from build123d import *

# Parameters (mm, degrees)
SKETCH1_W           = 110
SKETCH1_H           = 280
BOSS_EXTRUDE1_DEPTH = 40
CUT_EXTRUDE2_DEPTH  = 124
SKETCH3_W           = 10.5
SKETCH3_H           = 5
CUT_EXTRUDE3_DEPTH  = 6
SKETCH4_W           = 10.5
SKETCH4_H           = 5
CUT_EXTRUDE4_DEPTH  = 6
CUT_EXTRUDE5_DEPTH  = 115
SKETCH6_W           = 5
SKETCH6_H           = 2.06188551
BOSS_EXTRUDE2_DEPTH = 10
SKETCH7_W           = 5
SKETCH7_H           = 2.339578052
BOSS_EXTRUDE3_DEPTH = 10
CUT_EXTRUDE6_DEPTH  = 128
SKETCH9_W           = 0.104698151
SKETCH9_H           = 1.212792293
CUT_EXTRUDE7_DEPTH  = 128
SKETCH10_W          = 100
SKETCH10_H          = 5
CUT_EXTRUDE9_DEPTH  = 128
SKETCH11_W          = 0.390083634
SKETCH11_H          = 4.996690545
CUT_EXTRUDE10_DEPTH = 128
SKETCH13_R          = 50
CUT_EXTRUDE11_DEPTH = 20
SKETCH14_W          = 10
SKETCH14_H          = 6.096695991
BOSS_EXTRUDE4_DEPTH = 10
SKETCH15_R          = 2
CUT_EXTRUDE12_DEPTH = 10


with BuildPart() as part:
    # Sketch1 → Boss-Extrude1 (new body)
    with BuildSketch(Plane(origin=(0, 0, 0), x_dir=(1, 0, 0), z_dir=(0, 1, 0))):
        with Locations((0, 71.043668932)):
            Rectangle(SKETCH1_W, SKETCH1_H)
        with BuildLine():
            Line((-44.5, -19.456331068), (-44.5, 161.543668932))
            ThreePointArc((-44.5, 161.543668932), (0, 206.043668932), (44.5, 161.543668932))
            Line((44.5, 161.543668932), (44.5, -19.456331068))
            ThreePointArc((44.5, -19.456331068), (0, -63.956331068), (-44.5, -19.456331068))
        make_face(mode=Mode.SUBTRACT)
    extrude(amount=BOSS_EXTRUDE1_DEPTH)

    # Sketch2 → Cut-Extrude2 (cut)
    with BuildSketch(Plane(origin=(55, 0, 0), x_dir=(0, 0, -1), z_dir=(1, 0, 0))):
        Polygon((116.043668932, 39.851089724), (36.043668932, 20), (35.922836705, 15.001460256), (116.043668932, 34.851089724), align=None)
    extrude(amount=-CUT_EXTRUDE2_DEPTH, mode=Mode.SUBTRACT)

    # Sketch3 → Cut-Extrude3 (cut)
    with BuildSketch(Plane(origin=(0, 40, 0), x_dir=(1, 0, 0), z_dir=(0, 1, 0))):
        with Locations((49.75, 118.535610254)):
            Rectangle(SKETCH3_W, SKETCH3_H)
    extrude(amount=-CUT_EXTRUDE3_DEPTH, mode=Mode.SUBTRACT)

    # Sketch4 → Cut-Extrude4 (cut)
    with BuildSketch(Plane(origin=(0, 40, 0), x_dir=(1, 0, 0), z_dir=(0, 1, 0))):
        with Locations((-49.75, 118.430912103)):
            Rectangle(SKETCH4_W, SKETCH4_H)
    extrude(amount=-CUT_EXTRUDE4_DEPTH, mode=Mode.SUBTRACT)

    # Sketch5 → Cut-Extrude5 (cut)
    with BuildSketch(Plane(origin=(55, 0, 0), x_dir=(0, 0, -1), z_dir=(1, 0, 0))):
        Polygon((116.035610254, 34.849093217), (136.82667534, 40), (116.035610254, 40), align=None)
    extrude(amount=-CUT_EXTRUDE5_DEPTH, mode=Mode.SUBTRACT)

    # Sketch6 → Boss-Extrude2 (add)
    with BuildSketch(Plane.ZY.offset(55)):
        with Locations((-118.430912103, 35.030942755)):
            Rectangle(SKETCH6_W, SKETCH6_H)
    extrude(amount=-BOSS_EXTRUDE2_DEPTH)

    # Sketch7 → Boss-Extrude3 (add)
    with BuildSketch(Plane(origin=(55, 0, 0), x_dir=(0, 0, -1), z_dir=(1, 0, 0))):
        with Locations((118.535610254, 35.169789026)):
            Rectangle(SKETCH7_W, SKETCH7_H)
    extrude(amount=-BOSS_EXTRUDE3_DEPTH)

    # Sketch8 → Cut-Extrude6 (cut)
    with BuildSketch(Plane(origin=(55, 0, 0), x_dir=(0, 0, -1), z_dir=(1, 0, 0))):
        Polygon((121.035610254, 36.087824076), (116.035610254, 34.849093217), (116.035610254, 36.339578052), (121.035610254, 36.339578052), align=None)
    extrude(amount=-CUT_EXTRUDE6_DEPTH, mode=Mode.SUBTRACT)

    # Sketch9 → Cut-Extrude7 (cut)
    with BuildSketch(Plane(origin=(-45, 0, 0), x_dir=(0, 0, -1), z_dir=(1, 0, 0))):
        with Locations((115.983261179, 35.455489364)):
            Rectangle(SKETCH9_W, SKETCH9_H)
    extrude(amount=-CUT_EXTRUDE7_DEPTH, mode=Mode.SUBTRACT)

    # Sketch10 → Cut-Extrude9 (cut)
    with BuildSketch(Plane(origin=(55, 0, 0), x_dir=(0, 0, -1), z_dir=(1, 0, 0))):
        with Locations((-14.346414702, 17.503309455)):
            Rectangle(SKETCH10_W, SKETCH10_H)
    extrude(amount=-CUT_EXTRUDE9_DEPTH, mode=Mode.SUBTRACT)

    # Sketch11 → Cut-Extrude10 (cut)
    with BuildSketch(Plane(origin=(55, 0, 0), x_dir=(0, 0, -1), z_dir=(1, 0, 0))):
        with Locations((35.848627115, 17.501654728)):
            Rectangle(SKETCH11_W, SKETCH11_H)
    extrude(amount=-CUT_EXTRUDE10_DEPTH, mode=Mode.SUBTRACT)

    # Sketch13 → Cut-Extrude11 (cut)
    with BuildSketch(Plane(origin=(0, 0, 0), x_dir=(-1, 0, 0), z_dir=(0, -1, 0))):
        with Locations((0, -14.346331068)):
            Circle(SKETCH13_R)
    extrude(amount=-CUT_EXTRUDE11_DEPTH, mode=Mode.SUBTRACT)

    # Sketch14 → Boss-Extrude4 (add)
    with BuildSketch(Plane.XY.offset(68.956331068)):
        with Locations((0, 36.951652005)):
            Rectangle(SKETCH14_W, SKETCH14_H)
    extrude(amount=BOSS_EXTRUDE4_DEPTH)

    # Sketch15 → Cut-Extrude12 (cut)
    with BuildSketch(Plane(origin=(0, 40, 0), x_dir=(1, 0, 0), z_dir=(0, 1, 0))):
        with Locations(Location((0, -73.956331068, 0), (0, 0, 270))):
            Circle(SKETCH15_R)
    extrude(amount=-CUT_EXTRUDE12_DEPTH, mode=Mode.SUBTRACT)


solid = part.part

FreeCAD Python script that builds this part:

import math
import FreeCAD as App
import Part
import Sketcher
Q = App.Units.Quantity

doc = App.newDocument("Part")
params = doc.addObject("Spreadsheet::Sheet", "Params")
for row, (alias, value) in enumerate([
    ("sketch1_radius", "44.5 mm"),
    ("sketch1_width", "110 mm"),
    ("sketch1_height", "280 mm"),
    ("sketch1_height2", "181 mm"),
    ("pad1_length", "40 mm"),
    ("sketch2_width", "5 mm"),
    ("sketch2_length", "5 mm"),
    ("pocket1_length", "124 mm"),
    ("sketch3_height", "5 mm"),
    ("sketch3_width", "10.5 mm"),
    ("pocket2_length", "6 mm"),
    ("sketch4_height", "5 mm"),
    ("sketch4_width", "10.5 mm"),
    ("pocket3_length", "6 mm"),
    ("pocket4_length", "115 mm"),
    ("sketch6_height", "5 mm"),
    ("pad2_length", "10 mm"),
    ("sketch7_height", "5 mm"),
    ("pad3_length", "10 mm"),
    ("sketch8_height", "5 mm"),
    ("pocket5_length", "128 mm"),
    ("pocket6_length", "128 mm"),
    ("sketch10_width", "5 mm"),
    ("sketch10_height", "100 mm"),
    ("pocket7_length", "128 mm"),
    ("pocket8_length", "128 mm"),
    ("sketch12_diameter", "100 mm"),
    ("pocket9_length", "20 mm"),
    ("sketch13_width", "10 mm"),
    ("pad4_length", "10 mm"),
    ("sketch14_diameter", "4 mm"),
    ("pocket10_length", "10 mm"),
], start=1):
    params.set(f"A{row}", alias)
    params.set(f"B{row}", "=" + value)
    params.setAlias(f"B{row}", alias)

body = doc.addObject("PartDesign::Body", "Body")

# Sketch on XZ plane
sketch1 = body.newObject("Sketcher::SketchObject", "Sketch")
sketch1.AttachmentSupport = (doc.getObject("XZ_Plane"), [""])
sketch1.MapMode = "FlatFace"
sketch1.addGeometry([
    Part.LineSegment(App.Vector(-55, -211, 0), App.Vector(-55, 69, 0)),  # 0
    Part.LineSegment(App.Vector(-55, 69, 0), App.Vector(55, 69, 0)),  # 1
    Part.LineSegment(App.Vector(55, 69, 0), App.Vector(55, -211, 0)),  # 2
    Part.LineSegment(App.Vector(55, -211, 0), App.Vector(-55, -211, 0)),  # 3
    Part.ArcOfCircle(Part.Circle(App.Vector(0, 19, 0), App.Vector(0, 0, 1), 44), math.radians(0), math.radians(180)),  # 4
    Part.LineSegment(App.Vector(-44, 19, 0), App.Vector(-44, -162, 0)),  # 5
    Part.ArcOfCircle(Part.Circle(App.Vector(0, -162, 0), App.Vector(0, 0, 1), 44), math.radians(180), math.radians(360)),  # 6
    Part.LineSegment(App.Vector(44, -162, 0), App.Vector(44, 19, 0)),  # 7
], False)
sketch1.addConstraint([
    Sketcher.Constraint("Coincident", 0, 2, 1, 1),
    Sketcher.Constraint("Coincident", 1, 2, 2, 1),
    Sketcher.Constraint("Coincident", 2, 2, 3, 1),
    Sketcher.Constraint("Coincident", 3, 2, 0, 1),
    Sketcher.Constraint("Tangent", 4, 2, 5, 1),
    Sketcher.Constraint("Tangent", 5, 2, 6, 1),
    Sketcher.Constraint("Tangent", 6, 2, 7, 1),
    Sketcher.Constraint("Tangent", 7, 2, 4, 1),
    Sketcher.Constraint("Vertical", 0),
    Sketcher.Constraint("Horizontal", 1),
    Sketcher.Constraint("Vertical", 2),
    Sketcher.Constraint("Horizontal", 3),
    Sketcher.Constraint("Vertical", 5),
    Sketcher.Constraint("Vertical", 7),
    Sketcher.Constraint("PointOnObject", 4, 3, -2),
    Sketcher.Constraint("Radius", 4, Q("44.5 mm")),
    Sketcher.Constraint("DistanceX", 1, 1, 1, 2, Q("110 mm")),
    Sketcher.Constraint("DistanceY", 0, 1, 0, 2, Q("280 mm")),
    Sketcher.Constraint("DistanceY", 5, 2, 5, 1, Q("181 mm")),
    Sketcher.Constraint("DistanceX", 0, 2, -1, 1, Q("55 mm")),
    Sketcher.Constraint("DistanceY", 4, 3, 0, 2, Q("49.5 mm")),
    Sketcher.Constraint("DistanceY", -1, 1, 4, 3, Q("19.456331 mm")),
])
sketch1.setExpression("Constraints[15]", "Params.sketch1_radius")
sketch1.setExpression("Constraints[16]", "Params.sketch1_width")
sketch1.setExpression("Constraints[17]", "Params.sketch1_height")
sketch1.setExpression("Constraints[18]", "Params.sketch1_height2")
pad1 = body.newObject("PartDesign::Pad", "Pad")
pad1.Profile = sketch1
pad1.setExpression("Length", "Params.pad1_length")
pad1.Reversed = True

# Sketch on YZ plane
sketch2 = body.newObject("Sketcher::SketchObject", "Sketch001")
sketch2.AttachmentSupport = (doc.getObject("YZ_Plane"), [""])
sketch2.MapMode = "FlatFace"
sketch2.AttachmentOffset = App.Placement(App.Vector(0, 0, 55), App.Rotation())
sketch2.addGeometry([
    Part.LineSegment(App.Vector(39.9, -116, 0), App.Vector(20, -36, 0)),
    Part.LineSegment(App.Vector(20, -36, 0), App.Vector(15, -35.9, 0)),
    Part.LineSegment(App.Vector(15, -35.9, 0), App.Vector(34.9, -116, 0)),
    Part.LineSegment(App.Vector(34.9, -116, 0), App.Vector(39.9, -116, 0)),
], False)
sketch2.addConstraint([
    Sketcher.Constraint("Coincident", 0, 2, 1, 1),
    Sketcher.Constraint("Coincident", 1, 2, 2, 1),
    Sketcher.Constraint("Coincident", 2, 2, 3, 1),
    Sketcher.Constraint("Coincident", 3, 2, 0, 1),
    Sketcher.Constraint("Horizontal", 3),
    Sketcher.Constraint("DistanceX", 3, 1, 3, 2, Q("5 mm")),
    Sketcher.Constraint("Distance", 1, Q("5 mm")),
    Sketcher.Constraint("DistanceX", -1, 1, 0, 2, Q("20 mm")),
    Sketcher.Constraint("DistanceY", 2, 2, 0, 2, Q("80 mm")),
    Sketcher.Constraint("DistanceY", 0, 2, -1, 1, Q("36.043669 mm")),
    Sketcher.Constraint("DistanceX", -1, 1, 1, 2, Q("15.00146 mm")),
    Sketcher.Constraint("DistanceX", -1, 1, 2, 2, Q("34.85109 mm")),
])
sketch2.setExpression("Constraints[5]", "Params.sketch2_width")
sketch2.setExpression("Constraints[6]", "Params.sketch2_length")
pocket1 = body.newObject("PartDesign::Pocket", "Pocket")
pocket1.Profile = sketch2
pocket1.setExpression("Length", "Params.pocket1_length")

# Sketch on XZ plane
sketch3 = body.newObject("Sketcher::SketchObject", "Sketch002")
sketch3.AttachmentSupport = (doc.getObject("XZ_Plane"), [""])
sketch3.MapMode = "FlatFace"
sketch3.AttachmentOffset = App.Placement(App.Vector(0, 0, -40), App.Rotation())
sketch3.addGeometry([
    Part.LineSegment(App.Vector(44, -121, 0), App.Vector(44, -116, 0)),
    Part.LineSegment(App.Vector(44, -116, 0), App.Vector(55, -116, 0)),
    Part.LineSegment(App.Vector(55, -116, 0), App.Vector(55, -121, 0)),
    Part.LineSegment(App.Vector(55, -121, 0), App.Vector(44, -121, 0)),
], False)
sketch3.addConstraint([
    Sketcher.Constraint("Coincident", 0, 2, 1, 1),
    Sketcher.Constraint("Coincident", 1, 2, 2, 1),
    Sketcher.Constraint("Coincident", 2, 2, 3, 1),
    Sketcher.Constraint("Coincident", 3, 2, 0, 1),
    Sketcher.Constraint("Vertical", 0),
    Sketcher.Constraint("Horizontal", 1),
    Sketcher.Constraint("Vertical", 2),
    Sketcher.Constraint("Horizontal", 3),
    Sketcher.Constraint("DistanceY", 0, 1, 0, 2, Q("5 mm")),
    Sketcher.Constraint("DistanceX", 1, 1, 1, 2, Q("10.5 mm")),
    Sketcher.Constraint("DistanceX", -1, 1, 1, 2, Q("55 mm")),
    Sketcher.Constraint("DistanceY", 0, 2, -1, 1, Q("116.03561 mm")),
])
sketch3.setExpression("Constraints[8]", "Params.sketch3_height")
sketch3.setExpression("Constraints[9]", "Params.sketch3_width")
pocket2 = body.newObject("PartDesign::Pocket", "Pocket001")
pocket2.Profile = sketch3
pocket2.setExpression("Length", "Params.pocket2_length")
pocket2.Reversed = True

# Sketch on XZ plane
sketch4 = body.newObject("Sketcher::SketchObject", "Sketch003")
sketch4.AttachmentSupport = (doc.getObject("XZ_Plane"), [""])
sketch4.MapMode = "FlatFace"
sketch4.AttachmentOffset = App.Placement(App.Vector(0, 0, -40), App.Rotation())
sketch4.addGeometry([
    Part.LineSegment(App.Vector(-55, -121, 0), App.Vector(-55, -116, 0)),
    Part.LineSegment(App.Vector(-55, -116, 0), App.Vector(-44, -116, 0)),
    Part.LineSegment(App.Vector(-44, -116, 0), App.Vector(-44, -121, 0)),
    Part.LineSegment(App.Vector(-44, -121, 0), App.Vector(-55, -121, 0)),
], False)
sketch4.addConstraint([
    Sketcher.Constraint("Coincident", 0, 2, 1, 1),
    Sketcher.Constraint("Coincident", 1, 2, 2, 1),
    Sketcher.Constraint("Coincident", 2, 2, 3, 1),
    Sketcher.Constraint("Coincident", 3, 2, 0, 1),
    Sketcher.Constraint("Vertical", 0),
    Sketcher.Constraint("Horizontal", 1),
    Sketcher.Constraint("Vertical", 2),
    Sketcher.Constraint("Horizontal", 3),
    Sketcher.Constraint("DistanceY", 0, 1, 0, 2, Q("5 mm")),
    Sketcher.Constraint("DistanceX", 1, 1, 1, 2, Q("10.5 mm")),
    Sketcher.Constraint("DistanceX", 0, 2, -1, 1, Q("55 mm")),
    Sketcher.Constraint("DistanceY", 0, 2, -1, 1, Q("115.930912 mm")),
])
sketch4.setExpression("Constraints[8]", "Params.sketch4_height")
sketch4.setExpression("Constraints[9]", "Params.sketch4_width")
pocket3 = body.newObject("PartDesign::Pocket", "Pocket002")
pocket3.Profile = sketch4
pocket3.setExpression("Length", "Params.pocket3_length")
pocket3.Reversed = True

# Sketch on YZ plane
sketch5 = body.newObject("Sketcher::SketchObject", "Sketch004")
sketch5.AttachmentSupport = (doc.getObject("YZ_Plane"), [""])
sketch5.MapMode = "FlatFace"
sketch5.AttachmentOffset = App.Placement(App.Vector(0, 0, 55), App.Rotation())
sketch5.addGeometry([
    Part.LineSegment(App.Vector(35, -116, 0), App.Vector(40, -137, 0)),
    Part.LineSegment(App.Vector(40, -137, 0), App.Vector(40, -116, 0)),
    Part.LineSegment(App.Vector(40, -116, 0), App.Vector(35, -116, 0)),
], False)
sketch5.addConstraint([
    Sketcher.Constraint("Coincident", 0, 2, 1, 1),
    Sketcher.Constraint("Coincident", 1, 2, 2, 1),
    Sketcher.Constraint("Coincident", 2, 2, 0, 1),
    Sketcher.Constraint("Vertical", 1),
    Sketcher.Constraint("Horizontal", 2),
    Sketcher.Constraint("DistanceX", -1, 1, 0, 2, Q("40 mm")),
    Sketcher.Constraint("DistanceX", 2, 2, 2, 1, Q("5.150907 mm")),
    Sketcher.Constraint("DistanceY", 1, 1, 1, 2, Q("20.791065 mm")),
    Sketcher.Constraint("DistanceY", 1, 2, -1, 1, Q("116.03561 mm")),
])
pocket4 = body.newObject("PartDesign::Pocket", "Pocket003")
pocket4.Profile = sketch5
pocket4.setExpression("Length", "Params.pocket4_length")

# Sketch on YZ plane
sketch6 = body.newObject("Sketcher::SketchObject", "Sketch005")
sketch6.AttachmentSupport = (doc.getObject("YZ_Plane"), [""])
sketch6.MapMode = "FlatFace"
sketch6.AttachmentOffset = App.Placement(App.Vector(0, 0, -55), App.Rotation())
sketch6.addGeometry([
    Part.LineSegment(App.Vector(36.1, -120.9, 0), App.Vector(34, -120.9, 0)),
    Part.LineSegment(App.Vector(34, -120.9, 0), App.Vector(34, -115.9, 0)),
    Part.LineSegment(App.Vector(34, -115.9, 0), App.Vector(36.1, -115.9, 0)),
    Part.LineSegment(App.Vector(36.1, -115.9, 0), App.Vector(36.1, -120.9, 0)),
], False)
sketch6.addConstraint([
    Sketcher.Constraint("Coincident", 0, 2, 1, 1),
    Sketcher.Constraint("Coincident", 1, 2, 2, 1),
    Sketcher.Constraint("Coincident", 2, 2, 3, 1),
    Sketcher.Constraint("Coincident", 3, 2, 0, 1),
    Sketcher.Constraint("Horizontal", 0),
    Sketcher.Constraint("Vertical", 1),
    Sketcher.Constraint("Horizontal", 2),
    Sketcher.Constraint("Vertical", 3),
    Sketcher.Constraint("DistanceY", 1, 1, 1, 2, Q("5 mm")),
    Sketcher.Constraint("DistanceX", -1, 1, 0, 2, Q("34 mm")),
    Sketcher.Constraint("DistanceX", 0, 2, 0, 1, Q("2.061886 mm")),
    Sketcher.Constraint("DistanceY", 0, 2, -1, 1, Q("120.930912 mm")),
])
sketch6.setExpression("Constraints[8]", "Params.sketch6_height")
pad2 = body.newObject("PartDesign::Pad", "Pad001")
pad2.Profile = sketch6
pad2.setExpression("Length", "Params.pad2_length")

# Sketch on YZ plane
sketch7 = body.newObject("Sketcher::SketchObject", "Sketch006")
sketch7.AttachmentSupport = (doc.getObject("YZ_Plane"), [""])
sketch7.MapMode = "FlatFace"
sketch7.AttachmentOffset = App.Placement(App.Vector(0, 0, 55), App.Rotation())
sketch7.addGeometry([
    Part.LineSegment(App.Vector(36.3, -116, 0), App.Vector(34, -116, 0)),
    Part.LineSegment(App.Vector(34, -116, 0), App.Vector(34, -121, 0)),
    Part.LineSegment(App.Vector(34, -121, 0), App.Vector(36.3, -121, 0)),
    Part.LineSegment(App.Vector(36.3, -121, 0), App.Vector(36.3, -116, 0)),
], False)
sketch7.addConstraint([
    Sketcher.Constraint("Coincident", 0, 2, 1, 1),
    Sketcher.Constraint("Coincident", 1, 2, 2, 1),
    Sketcher.Constraint("Coincident", 2, 2, 3, 1),
    Sketcher.Constraint("Coincident", 3, 2, 0, 1),
    Sketcher.Constraint("Horizontal", 0),
    Sketcher.Constraint("Vertical", 1),
    Sketcher.Constraint("Horizontal", 2),
    Sketcher.Constraint("Vertical", 3),
    Sketcher.Constraint("DistanceY", 1, 2, 1, 1, Q("5 mm")),
    Sketcher.Constraint("DistanceX", -1, 1, 0, 2, Q("34 mm")),
    Sketcher.Constraint("DistanceX", 0, 2, 0, 1, Q("2.339578 mm")),
    Sketcher.Constraint("DistanceY", 0, 2, -1, 1, Q("116.03561 mm")),
])
sketch7.setExpression("Constraints[8]", "Params.sketch7_height")
pad3 = body.newObject("PartDesign::Pad", "Pad002")
pad3.Profile = sketch7
pad3.setExpression("Length", "Params.pad3_length")
pad3.Reversed = True

# Sketch on YZ plane
sketch8 = body.newObject("Sketcher::SketchObject", "Sketch007")
sketch8.AttachmentSupport = (doc.getObject("YZ_Plane"), [""])
sketch8.MapMode = "FlatFace"
sketch8.AttachmentOffset = App.Placement(App.Vector(0, 0, 55), App.Rotation())
sketch8.addGeometry([
    Part.LineSegment(App.Vector(34.85, -116.04, 0), App.Vector(36.09, -121.04, 0)),
    Part.LineSegment(App.Vector(36.09, -121.04, 0), App.Vector(36.34, -121.04, 0)),
    Part.LineSegment(App.Vector(36.34, -121.04, 0), App.Vector(36.34, -116.04, 0)),
    Part.LineSegment(App.Vector(36.34, -116.04, 0), App.Vector(34.85, -116.04, 0)),
], False)
sketch8.addConstraint([
    Sketcher.Constraint("Coincident", 0, 2, 1, 1),
    Sketcher.Constraint("Coincident", 1, 2, 2, 1),
    Sketcher.Constraint("Coincident", 2, 2, 3, 1),
    Sketcher.Constraint("Coincident", 3, 2, 0, 1),
    Sketcher.Constraint("Horizontal", 1),
    Sketcher.Constraint("Vertical", 2),
    Sketcher.Constraint("Horizontal", 3),
    Sketcher.Constraint("DistanceY", 2, 1, 2, 2, Q("5 mm")),
    Sketcher.Constraint("Distance", 0, Q("5.15116 mm")),
    Sketcher.Constraint("DistanceX", 1, 1, 1, 2, Q("0.251754 mm")),
    Sketcher.Constraint("DistanceY", 0, 2, -1, 1, Q("121.03561 mm")),
    Sketcher.Constraint("DistanceX", -1, 1, 1, 2, Q("36.339578 mm")),
])
sketch8.setExpression("Constraints[7]", "Params.sketch8_height")
pocket5 = body.newObject("PartDesign::Pocket", "Pocket004")
pocket5.Profile = sketch8
pocket5.setExpression("Length", "Params.pocket5_length")

# Sketch on YZ plane
sketch9 = body.newObject("Sketcher::SketchObject", "Sketch008")
sketch9.AttachmentSupport = (doc.getObject("YZ_Plane"), [""])
sketch9.MapMode = "FlatFace"
sketch9.AttachmentOffset = App.Placement(App.Vector(0, 0, -45), App.Rotation())
sketch9.addGeometry([
    Part.LineSegment(App.Vector(36.06, -115.93, 0), App.Vector(34.85, -115.93, 0)),
    Part.LineSegment(App.Vector(34.85, -115.93, 0), App.Vector(34.85, -116.04, 0)),
    Part.LineSegment(App.Vector(34.85, -116.04, 0), App.Vector(36.06, -116.04, 0)),
    Part.LineSegment(App.Vector(36.06, -116.04, 0), App.Vector(36.06, -115.93, 0)),
], False)
sketch9.addConstraint([
    Sketcher.Constraint("Coincident", 0, 2, 1, 1),
    Sketcher.Constraint("Coincident", 1, 2, 2, 1),
    Sketcher.Constraint("Coincident", 2, 2, 3, 1),
    Sketcher.Constraint("Coincident", 3, 2, 0, 1),
    Sketcher.Constraint("Horizontal", 0),
    Sketcher.Constraint("Vertical", 1),
    Sketcher.Constraint("Horizontal", 2),
    Sketcher.Constraint("Vertical", 3),
    Sketcher.Constraint("DistanceY", 1, 2, 1, 1, Q("0.104698 mm")),
    Sketcher.Constraint("DistanceX", 0, 2, 0, 1, Q("1.212792 mm")),
    Sketcher.Constraint("DistanceY", 1, 2, -1, 1, Q("116.03561 mm")),
    Sketcher.Constraint("DistanceX", -1, 1, 0, 2, Q("34.849093 mm")),
])
pocket6 = body.newObject("PartDesign::Pocket", "Pocket005")
pocket6.Profile = sketch9
pocket6.setExpression("Length", "Params.pocket6_length")

# Sketch on YZ plane
sketch10 = body.newObject("Sketcher::SketchObject", "Sketch009")
sketch10.AttachmentSupport = (doc.getObject("YZ_Plane"), [""])
sketch10.MapMode = "FlatFace"
sketch10.AttachmentOffset = App.Placement(App.Vector(0, 0, 55), App.Rotation())
sketch10.addGeometry([
    Part.LineSegment(App.Vector(20, 64, 0), App.Vector(15, 64, 0)),
    Part.LineSegment(App.Vector(15, 64, 0), App.Vector(15, -36, 0)),
    Part.LineSegment(App.Vector(15, -36, 0), App.Vector(20, -36, 0)),
    Part.LineSegment(App.Vector(20, -36, 0), App.Vector(20, 64, 0)),
], False)
sketch10.addConstraint([
    Sketcher.Constraint("Coincident", 0, 2, 1, 1),
    Sketcher.Constraint("Coincident", 1, 2, 2, 1),
    Sketcher.Constraint("Coincident", 2, 2, 3, 1),
    Sketcher.Constraint("Coincident", 3, 2, 0, 1),
    Sketcher.Constraint("Horizontal", 0),
    Sketcher.Constraint("Vertical", 1),
    Sketcher.Constraint("Horizontal", 2),
    Sketcher.Constraint("Vertical", 3),
    Sketcher.Constraint("DistanceX", 0, 2, 0, 1, Q("5 mm")),
    Sketcher.Constraint("DistanceY", 1, 2, 1, 1, Q("100 mm")),
    Sketcher.Constraint("DistanceX", -1, 1, 0, 2, Q("15.003309 mm")),
    Sketcher.Constraint("DistanceY", -1, 1, 0, 2, Q("64.346415 mm")),
])
sketch10.setExpression("Constraints[8]", "Params.sketch10_width")
sketch10.setExpression("Constraints[9]", "Params.sketch10_height")
pocket7 = body.newObject("PartDesign::Pocket", "Pocket006")
pocket7.Profile = sketch10
pocket7.setExpression("Length", "Params.pocket7_length")

# Sketch on YZ plane
sketch11 = body.newObject("Sketcher::SketchObject", "Sketch010")
sketch11.AttachmentSupport = (doc.getObject("YZ_Plane"), [""])
sketch11.MapMode = "FlatFace"
sketch11.AttachmentOffset = App.Placement(App.Vector(0, 0, 55), App.Rotation())
sketch11.addGeometry([
    Part.LineSegment(App.Vector(20, -35.65, 0), App.Vector(15, -35.65, 0)),
    Part.LineSegment(App.Vector(15, -35.65, 0), App.Vector(15, -36.04, 0)),
    Part.LineSegment(App.Vector(15, -36.04, 0), App.Vector(20, -36.04, 0)),
    Part.LineSegment(App.Vector(20, -36.04, 0), App.Vector(20, -35.65, 0)),
], False)
sketch11.addConstraint([
    Sketcher.Constraint("Coincident", 0, 2, 1, 1),
    Sketcher.Constraint("Coincident", 1, 2, 2, 1),
    Sketcher.Constraint("Coincident", 2, 2, 3, 1),
    Sketcher.Constraint("Coincident", 3, 2, 0, 1),
    Sketcher.Constraint("Horizontal", 0),
    Sketcher.Constraint("Vertical", 1),
    Sketcher.Constraint("Horizontal", 2),
    Sketcher.Constraint("Vertical", 3),
    Sketcher.Constraint("DistanceX", -1, 1, 2, 2, Q("20 mm")),
    Sketcher.Constraint("DistanceX", 0, 2, 0, 1, Q("4.996691 mm")),
    Sketcher.Constraint("DistanceY", 1, 2, 1, 1, Q("0.390084 mm")),
    Sketcher.Constraint("DistanceY", 1, 2, -1, 1, Q("36.043669 mm")),
])
pocket8 = body.newObject("PartDesign::Pocket", "Pocket007")
pocket8.Profile = sketch11
pocket8.setExpression("Length", "Params.pocket8_length")

# Sketch on XZ plane
sketch12 = body.newObject("Sketcher::SketchObject", "Sketch011")
sketch12.AttachmentSupport = (doc.getObject("XZ_Plane"), [""])
sketch12.MapMode = "FlatFace"
sketch12.addGeometry(Part.Circle(App.Vector(0, 14, 0), App.Vector(0, 0, 1), 50), False)
sketch12.addConstraint([
    Sketcher.Constraint("PointOnObject", 0, 3, -2),
    Sketcher.Constraint("Diameter", 0, Q("100 mm")),
    Sketcher.Constraint("DistanceY", -1, 1, 0, 3, Q("14.346331 mm")),
])
sketch12.setExpression("Constraints[1]", "Params.sketch12_diameter")
pocket9 = body.newObject("PartDesign::Pocket", "Pocket008")
pocket9.Profile = sketch12
pocket9.setExpression("Length", "Params.pocket9_length")

# Sketch on XY plane
sketch13 = body.newObject("Sketcher::SketchObject", "Sketch012")
sketch13.AttachmentSupport = (doc.getObject("XY_Plane"), [""])
sketch13.MapMode = "FlatFace"
sketch13.AttachmentOffset = App.Placement(App.Vector(0, 0, 68.956331), App.Rotation())
sketch13.addGeometry([
    Part.LineSegment(App.Vector(-5, 40, 0), App.Vector(-5, 34, 0)),
    Part.LineSegment(App.Vector(-5, 34, 0), App.Vector(5, 34, 0)),
    Part.LineSegment(App.Vector(5, 34, 0), App.Vector(5, 40, 0)),
    Part.LineSegment(App.Vector(5, 40, 0), App.Vector(-5, 40, 0)),
], False)
sketch13.addConstraint([
    Sketcher.Constraint("Coincident", 0, 2, 1, 1),
    Sketcher.Constraint("Coincident", 1, 2, 2, 1),
    Sketcher.Constraint("Coincident", 2, 2, 3, 1),
    Sketcher.Constraint("Coincident", 3, 2, 0, 1),
    Sketcher.Constraint("Vertical", 0),
    Sketcher.Constraint("Horizontal", 1),
    Sketcher.Constraint("Vertical", 2),
    Sketcher.Constraint("Horizontal", 3),
    Sketcher.Constraint("DistanceX", 1, 1, 1, 2, Q("10 mm")),
    Sketcher.Constraint("DistanceX", 0, 2, -1, 1, Q("5 mm")),
    Sketcher.Constraint("DistanceY", -1, 1, 2, 2, Q("40 mm")),
    Sketcher.Constraint("DistanceY", 0, 2, 0, 1, Q("6.096696 mm")),
])
sketch13.setExpression("Constraints[8]", "Params.sketch13_width")
pad4 = body.newObject("PartDesign::Pad", "Pad003")
pad4.Profile = sketch13
pad4.setExpression("Length", "Params.pad4_length")

# Sketch on XZ plane
sketch14 = body.newObject("Sketcher::SketchObject", "Sketch013")
sketch14.AttachmentSupport = (doc.getObject("XZ_Plane"), [""])
sketch14.MapMode = "FlatFace"
sketch14.AttachmentOffset = App.Placement(App.Vector(0, 0, -40), App.Rotation())
sketch14.addGeometry(Part.Circle(App.Vector(0, 74, 0), App.Vector(0, 0, 1), 2), False)
sketch14.addConstraint([
    Sketcher.Constraint("PointOnObject", 0, 3, -2),
    Sketcher.Constraint("Diameter", 0, Q("4 mm")),
    Sketcher.Constraint("DistanceY", -1, 1, 0, 3, Q("73.956331 mm")),
])
sketch14.setExpression("Constraints[1]", "Params.sketch14_diameter")
pocket10 = body.newObject("PartDesign::Pocket", "Pocket009")
pocket10.Profile = sketch14
pocket10.setExpression("Length", "Params.pocket10_length")
pocket10.Reversed = True

doc.recompute()
